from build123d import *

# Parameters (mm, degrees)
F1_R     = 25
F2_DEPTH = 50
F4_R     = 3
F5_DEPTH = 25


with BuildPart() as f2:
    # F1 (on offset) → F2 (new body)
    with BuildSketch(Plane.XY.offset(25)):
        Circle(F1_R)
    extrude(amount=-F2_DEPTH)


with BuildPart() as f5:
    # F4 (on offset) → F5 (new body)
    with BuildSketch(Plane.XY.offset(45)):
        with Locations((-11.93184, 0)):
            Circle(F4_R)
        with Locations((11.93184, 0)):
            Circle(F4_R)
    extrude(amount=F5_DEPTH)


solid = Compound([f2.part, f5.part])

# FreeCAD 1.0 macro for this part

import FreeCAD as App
import Part
import Sketcher

doc = App.newDocument("Part")
params = doc.addObject("Spreadsheet::Sheet", "Params")
for row, (alias, value) in enumerate([
    ("sketch1_diameter", "50 mm"),
    ("pad1_length", "50 mm"),
    ("sketch2_diameter", "6 mm"),
    ("pad2_length", "25 mm"),
], start=1):
    params.set(f"A{row}", alias)
    params.set(f"B{row}", "=" + value)
    params.setAlias(f"B{row}", alias)

body = doc.addObject("PartDesign::Body", "Body")

sketch1 = doc.addObject("Sketcher::SketchObject", "Sketch")
body.addObject(sketch1)
sketch1.AttachmentSupport = (doc.XY_Plane, [""])
sketch1.MapMode = "FlatFace"
sketch1.AttachmentOffset = App.Placement(App.Vector(0, 0, 25), App.Rotation())
sketch1.addGeometry(Part.Circle(App.Vector(0, 0, 0), App.Vector(0, 0, 1), 25), False)
sketch1.addConstraint(Sketcher.Constraint("Coincident", 0, 3, -1, 1))
sketch1.addConstraint(Sketcher.Constraint("Diameter", 0, 50.0))
sketch1.setExpression("Constraints[1]", "Params.sketch1_diameter")
pad1 = doc.addObject("PartDesign::Pad", "Pad")
body.addObject(pad1)
pad1.Profile = sketch1
pad1.setExpression("Length", "Params.pad1_length")
pad1.Reversed = True
body2 = doc.addObject("PartDesign::Body", "Body001")
body2.AllowCompound = True

sketch2 = doc.addObject("Sketcher::SketchObject", "Sketch001")
body2.addObject(sketch2)
sketch2.AttachmentSupport = (doc.getObject("XY_Plane001"), [""])
sketch2.MapMode = "FlatFace"
sketch2.AttachmentOffset = App.Placement(App.Vector(0, 0, 45), App.Rotation())
sketch2.addGeometry(Part.Circle(App.Vector(-11.93184, 0, 0), App.Vector(0, 0, 1), 3), False)
sketch2.addGeometry(Part.Circle(App.Vector(11.93184, 0, 0), App.Vector(0, 0, 1), 3), False)
sketch2.addConstraint(Sketcher.Constraint("Equal", 0, 1))
sketch2.addConstraint(Sketcher.Constraint("Symmetric", 0, 3, 1, 3, -1, 1))
sketch2.addConstraint(Sketcher.Constraint("PointOnObject", 0, 3, -1))
sketch2.addConstraint(Sketcher.Constraint("Diameter", 0, 6.0))
sketch2.addConstraint(Sketcher.Constraint("DistanceX", 0, 3, -1, 1, 11.93184))
sketch2.setExpression("Constraints[3]", "Params.sketch2_diameter")
pad2 = doc.addObject("PartDesign::Pad", "Pad001")
body2.addObject(pad2)
pad2.Profile = sketch2
pad2.setExpression("Length", "Params.pad2_length")

doc.recompute()
